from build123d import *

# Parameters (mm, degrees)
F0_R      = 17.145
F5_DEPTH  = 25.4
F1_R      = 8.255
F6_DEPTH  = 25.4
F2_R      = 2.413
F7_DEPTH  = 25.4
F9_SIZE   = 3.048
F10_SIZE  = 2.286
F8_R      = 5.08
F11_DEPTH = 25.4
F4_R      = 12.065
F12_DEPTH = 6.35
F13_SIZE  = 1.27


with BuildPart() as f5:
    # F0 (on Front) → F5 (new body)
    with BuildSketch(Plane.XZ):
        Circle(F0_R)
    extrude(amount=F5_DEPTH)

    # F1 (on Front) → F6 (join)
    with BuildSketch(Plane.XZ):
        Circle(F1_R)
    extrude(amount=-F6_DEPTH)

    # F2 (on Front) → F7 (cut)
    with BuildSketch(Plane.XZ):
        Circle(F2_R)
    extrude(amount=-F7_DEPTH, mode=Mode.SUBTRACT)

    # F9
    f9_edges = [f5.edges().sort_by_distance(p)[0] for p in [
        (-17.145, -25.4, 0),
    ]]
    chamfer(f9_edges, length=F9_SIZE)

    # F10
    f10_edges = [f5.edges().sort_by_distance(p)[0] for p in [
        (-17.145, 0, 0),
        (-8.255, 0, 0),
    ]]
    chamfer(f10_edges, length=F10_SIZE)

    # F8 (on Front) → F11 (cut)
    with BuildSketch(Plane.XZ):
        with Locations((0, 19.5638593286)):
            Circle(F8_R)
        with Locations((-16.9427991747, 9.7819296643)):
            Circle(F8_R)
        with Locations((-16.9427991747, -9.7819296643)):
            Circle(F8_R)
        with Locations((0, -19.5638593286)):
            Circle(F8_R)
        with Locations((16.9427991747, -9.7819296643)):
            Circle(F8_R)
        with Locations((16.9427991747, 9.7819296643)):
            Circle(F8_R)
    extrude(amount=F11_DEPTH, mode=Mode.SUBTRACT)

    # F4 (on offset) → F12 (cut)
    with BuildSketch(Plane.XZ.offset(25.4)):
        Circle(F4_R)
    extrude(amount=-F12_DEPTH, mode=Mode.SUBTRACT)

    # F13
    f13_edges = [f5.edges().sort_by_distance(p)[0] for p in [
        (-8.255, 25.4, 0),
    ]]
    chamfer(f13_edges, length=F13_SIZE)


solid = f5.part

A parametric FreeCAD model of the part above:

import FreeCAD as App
import Part
import Sketcher

V = App.Vector
Q = App.Units.Quantity


def edges_at(feature, points):
    """Names of the edges that pass closest to the given points."""
    edges = feature.Shape.Edges
    near = lambda p: min(range(len(edges)), key=lambda i: edges[i].distToShape(Part.Vertex(*p))[0])
    return sorted({f"Edge{near(p) + 1}" for p in points})

doc = App.newDocument("Part")
params = doc.addObject("Spreadsheet::Sheet", "Params")
for row, (alias, value) in enumerate([
    ("sketch1_diameter", "1.35 in"),
    ("pad1_length", "1 in"),
    ("sketch2_diameter", "0.65 in"),
    ("pad2_length", "1 in"),
    ("sketch3_diameter", "0.19 in"),
    ("pocket1_length", "1 in"),
    ("chamfer_size", "0.12 in"),
    ("chamfer2_size", "0.09 in"),
    ("sketch4_diameter", "0.4 in"),
    ("pocket2_length", "1 in"),
    ("sketch5_diameter", "0.95 in"),
    ("pocket3_length", "0.25 in"),
    ("chamfer3_size", "0.05 in"),
], start=1):
    params.set(f"A{row}", alias)
    params.set(f"B{row}", "=" + value)
    params.setAlias(f"B{row}", alias)

body = doc.addObject("PartDesign::Body", "Body")

sketch1 = body.newObject("Sketcher::SketchObject", "Sketch")
sketch1.AttachmentSupport = (doc.getObject("XZ_Plane"), [""])
sketch1.MapMode = "FlatFace"
sketch1.addGeometry(Part.Circle(V(0, 0, 0), V(0, 0, 1), 17), False)
sketch1.addConstraint(Sketcher.Constraint("Coincident", 0, 3, -1, 1))
sketch1.addConstraint(Sketcher.Constraint("Diameter", 0, Q("1.35 in")))
sketch1.setExpression("Constraints[1]", "Params.sketch1_diameter")
pad1 = body.newObject("PartDesign::Pad", "Pad")
pad1.Profile = sketch1
pad1.setExpression("Length", "Params.pad1_length")

sketch2 = body.newObject("Sketcher::SketchObject", "Sketch001")
sketch2.AttachmentSupport = (doc.getObject("XZ_Plane"), [""])
sketch2.MapMode = "FlatFace"
sketch2.addGeometry(Part.Circle(V(0, 0, 0), V(0, 0, 1), 8), False)
sketch2.addConstraint(Sketcher.Constraint("Coincident", 0, 3, -1, 1))
sketch2.addConstraint(Sketcher.Constraint("Diameter", 0, Q("0.65 in")))
sketch2.setExpression("Constraints[1]", "Params.sketch2_diameter")
pad2 = body.newObject("PartDesign::Pad", "Pad001")
pad2.Profile = sketch2
pad2.setExpression("Length", "Params.pad2_length")
pad2.Reversed = True

sketch3 = body.newObject("Sketcher::SketchObject", "Sketch002")
sketch3.AttachmentSupport = (doc.getObject("XZ_Plane"), [""])
sketch3.MapMode = "FlatFace"
sketch3.addGeometry(Part.Circle(V(0, 0, 0), V(0, 0, 1), 2.4), False)
sketch3.addConstraint(Sketcher.Constraint("Coincident", 0, 3, -1, 1))
sketch3.addConstraint(Sketcher.Constraint("Diameter", 0, Q("0.19 in")))
sketch3.setExpression("Constraints[1]", "Params.sketch3_diameter")
pocket1 = body.newObject("PartDesign::Pocket", "Pocket")
pocket1.Profile = sketch3
pocket1.setExpression("Length", "Params.pocket1_length")
doc.recompute()

chamfer = body.newObject("PartDesign::Chamfer", "Chamfer")
chamfer.Base = (pocket1, edges_at(pocket1, [(-17.145, -25.4, 0)]))
chamfer.setExpression("Size", "Params.chamfer_size")
doc.recompute()

chamfer2 = body.newObject("PartDesign::Chamfer", "Chamfer001")
chamfer2.Base = (chamfer, edges_at(chamfer, [(-17.145, 0, 0), (-8.255, 0, 0)]))
chamfer2.setExpression("Size", "Params.chamfer2_size")

sketch4 = body.newObject("Sketcher::SketchObject", "Sketch003")
sketch4.AttachmentSupport = (doc.getObject("XZ_Plane"), [""])
sketch4.MapMode = "FlatFace"
sketch4.addGeometry(Part.Circle(V(0, 20, 0), V(0, 0, 1), 5), False)
sketch4.addGeometry(Part.Circle(V(-17, 10, 0), V(0, 0, 1), 5), False)
sketch4.addGeometry(Part.Circle(V(-17, -10, 0), V(0, 0, 1), 5), False)
sketch4.addGeometry(Part.Circle(V(0, -20, 0), V(0, 0, 1), 5), False)
sketch4.addGeometry(Part.Circle(V(17, -10, 0), V(0, 0, 1), 5), False)
sketch4.addGeometry(Part.Circle(V(17, 10, 0), V(0, 0, 1), 5), False)
sketch4.addConstraint(Sketcher.Constraint("Equal", 0, 1))
sketch4.addConstraint(Sketcher.Constraint("Equal", 1, 2))
sketch4.addConstraint(Sketcher.Constraint("Equal", 2, 3))
sketch4.addConstraint(Sketcher.Constraint("Equal", 3, 4))
sketch4.addConstraint(Sketcher.Constraint("Equal", 4, 5))
sketch4.addConstraint(Sketcher.Constraint("Symmetric", 0, 3, 3, 3, -1, 1))
sketch4.addConstraint(Sketcher.Constraint("Symmetric", 1, 3, 4, 3, -1, 1))
sketch4.addConstraint(Sketcher.Constraint("Symmetric", 2, 3, 5, 3, -1, 1))
sketch4.addConstraint(Sketcher.Constraint("Symmetric", 2, 3, 4, 3, -2))
sketch4.addConstraint(Sketcher.Constraint("PointOnObject", 0, 3, -2))
sketch4.addConstraint(Sketcher.Constraint("Diameter", 0, Q("0.4 in")))
sketch4.addConstraint(Sketcher.Constraint("DistanceX", 1, 3, -1, 1, 16.942799))
sketch4.addConstraint(Sketcher.Constraint("DistanceY", -1, 1, 0, 3, 19.563859))
sketch4.addConstraint(Sketcher.Constraint("DistanceY", -1, 1, 1, 3, 9.78193))
sketch4.setExpression("Constraints[10]", "Params.sketch4_diameter")
pocket2 = body.newObject("PartDesign::Pocket", "Pocket001")
pocket2.Profile = sketch4
pocket2.setExpression("Length", "Params.pocket2_length")
pocket2.Reversed = True

sketch5 = body.newObject("Sketcher::SketchObject", "Sketch004")
sketch5.AttachmentSupport = (doc.getObject("XZ_Plane"), [""])
sketch5.MapMode = "FlatFace"
sketch5.AttachmentOffset = App.Placement(V(0, 0, 1 * 25.4), App.Rotation())
sketch5.addGeometry(Part.Circle(V(0, 0, 0), V(0, 0, 1), 12), False)
sketch5.addConstraint(Sketcher.Constraint("Coincident", 0, 3, -1, 1))
sketch5.addConstraint(Sketcher.Constraint("Diameter", 0, Q("0.95 in")))
sketch5.setExpression("Constraints[1]", "Params.sketch5_diameter")
pocket3 = body.newObject("PartDesign::Pocket", "Pocket002")
pocket3.Profile = sketch5
pocket3.setExpression("Length", "Params.pocket3_length")
doc.recompute()

chamfer3 = body.newObject("PartDesign::Chamfer", "Chamfer002")
chamfer3.Base = (pocket3, edges_at(pocket3, [(-8.255, 25.4, 0)]))
chamfer3.setExpression("Size", "Params.chamfer3_size")

doc.recompute()
